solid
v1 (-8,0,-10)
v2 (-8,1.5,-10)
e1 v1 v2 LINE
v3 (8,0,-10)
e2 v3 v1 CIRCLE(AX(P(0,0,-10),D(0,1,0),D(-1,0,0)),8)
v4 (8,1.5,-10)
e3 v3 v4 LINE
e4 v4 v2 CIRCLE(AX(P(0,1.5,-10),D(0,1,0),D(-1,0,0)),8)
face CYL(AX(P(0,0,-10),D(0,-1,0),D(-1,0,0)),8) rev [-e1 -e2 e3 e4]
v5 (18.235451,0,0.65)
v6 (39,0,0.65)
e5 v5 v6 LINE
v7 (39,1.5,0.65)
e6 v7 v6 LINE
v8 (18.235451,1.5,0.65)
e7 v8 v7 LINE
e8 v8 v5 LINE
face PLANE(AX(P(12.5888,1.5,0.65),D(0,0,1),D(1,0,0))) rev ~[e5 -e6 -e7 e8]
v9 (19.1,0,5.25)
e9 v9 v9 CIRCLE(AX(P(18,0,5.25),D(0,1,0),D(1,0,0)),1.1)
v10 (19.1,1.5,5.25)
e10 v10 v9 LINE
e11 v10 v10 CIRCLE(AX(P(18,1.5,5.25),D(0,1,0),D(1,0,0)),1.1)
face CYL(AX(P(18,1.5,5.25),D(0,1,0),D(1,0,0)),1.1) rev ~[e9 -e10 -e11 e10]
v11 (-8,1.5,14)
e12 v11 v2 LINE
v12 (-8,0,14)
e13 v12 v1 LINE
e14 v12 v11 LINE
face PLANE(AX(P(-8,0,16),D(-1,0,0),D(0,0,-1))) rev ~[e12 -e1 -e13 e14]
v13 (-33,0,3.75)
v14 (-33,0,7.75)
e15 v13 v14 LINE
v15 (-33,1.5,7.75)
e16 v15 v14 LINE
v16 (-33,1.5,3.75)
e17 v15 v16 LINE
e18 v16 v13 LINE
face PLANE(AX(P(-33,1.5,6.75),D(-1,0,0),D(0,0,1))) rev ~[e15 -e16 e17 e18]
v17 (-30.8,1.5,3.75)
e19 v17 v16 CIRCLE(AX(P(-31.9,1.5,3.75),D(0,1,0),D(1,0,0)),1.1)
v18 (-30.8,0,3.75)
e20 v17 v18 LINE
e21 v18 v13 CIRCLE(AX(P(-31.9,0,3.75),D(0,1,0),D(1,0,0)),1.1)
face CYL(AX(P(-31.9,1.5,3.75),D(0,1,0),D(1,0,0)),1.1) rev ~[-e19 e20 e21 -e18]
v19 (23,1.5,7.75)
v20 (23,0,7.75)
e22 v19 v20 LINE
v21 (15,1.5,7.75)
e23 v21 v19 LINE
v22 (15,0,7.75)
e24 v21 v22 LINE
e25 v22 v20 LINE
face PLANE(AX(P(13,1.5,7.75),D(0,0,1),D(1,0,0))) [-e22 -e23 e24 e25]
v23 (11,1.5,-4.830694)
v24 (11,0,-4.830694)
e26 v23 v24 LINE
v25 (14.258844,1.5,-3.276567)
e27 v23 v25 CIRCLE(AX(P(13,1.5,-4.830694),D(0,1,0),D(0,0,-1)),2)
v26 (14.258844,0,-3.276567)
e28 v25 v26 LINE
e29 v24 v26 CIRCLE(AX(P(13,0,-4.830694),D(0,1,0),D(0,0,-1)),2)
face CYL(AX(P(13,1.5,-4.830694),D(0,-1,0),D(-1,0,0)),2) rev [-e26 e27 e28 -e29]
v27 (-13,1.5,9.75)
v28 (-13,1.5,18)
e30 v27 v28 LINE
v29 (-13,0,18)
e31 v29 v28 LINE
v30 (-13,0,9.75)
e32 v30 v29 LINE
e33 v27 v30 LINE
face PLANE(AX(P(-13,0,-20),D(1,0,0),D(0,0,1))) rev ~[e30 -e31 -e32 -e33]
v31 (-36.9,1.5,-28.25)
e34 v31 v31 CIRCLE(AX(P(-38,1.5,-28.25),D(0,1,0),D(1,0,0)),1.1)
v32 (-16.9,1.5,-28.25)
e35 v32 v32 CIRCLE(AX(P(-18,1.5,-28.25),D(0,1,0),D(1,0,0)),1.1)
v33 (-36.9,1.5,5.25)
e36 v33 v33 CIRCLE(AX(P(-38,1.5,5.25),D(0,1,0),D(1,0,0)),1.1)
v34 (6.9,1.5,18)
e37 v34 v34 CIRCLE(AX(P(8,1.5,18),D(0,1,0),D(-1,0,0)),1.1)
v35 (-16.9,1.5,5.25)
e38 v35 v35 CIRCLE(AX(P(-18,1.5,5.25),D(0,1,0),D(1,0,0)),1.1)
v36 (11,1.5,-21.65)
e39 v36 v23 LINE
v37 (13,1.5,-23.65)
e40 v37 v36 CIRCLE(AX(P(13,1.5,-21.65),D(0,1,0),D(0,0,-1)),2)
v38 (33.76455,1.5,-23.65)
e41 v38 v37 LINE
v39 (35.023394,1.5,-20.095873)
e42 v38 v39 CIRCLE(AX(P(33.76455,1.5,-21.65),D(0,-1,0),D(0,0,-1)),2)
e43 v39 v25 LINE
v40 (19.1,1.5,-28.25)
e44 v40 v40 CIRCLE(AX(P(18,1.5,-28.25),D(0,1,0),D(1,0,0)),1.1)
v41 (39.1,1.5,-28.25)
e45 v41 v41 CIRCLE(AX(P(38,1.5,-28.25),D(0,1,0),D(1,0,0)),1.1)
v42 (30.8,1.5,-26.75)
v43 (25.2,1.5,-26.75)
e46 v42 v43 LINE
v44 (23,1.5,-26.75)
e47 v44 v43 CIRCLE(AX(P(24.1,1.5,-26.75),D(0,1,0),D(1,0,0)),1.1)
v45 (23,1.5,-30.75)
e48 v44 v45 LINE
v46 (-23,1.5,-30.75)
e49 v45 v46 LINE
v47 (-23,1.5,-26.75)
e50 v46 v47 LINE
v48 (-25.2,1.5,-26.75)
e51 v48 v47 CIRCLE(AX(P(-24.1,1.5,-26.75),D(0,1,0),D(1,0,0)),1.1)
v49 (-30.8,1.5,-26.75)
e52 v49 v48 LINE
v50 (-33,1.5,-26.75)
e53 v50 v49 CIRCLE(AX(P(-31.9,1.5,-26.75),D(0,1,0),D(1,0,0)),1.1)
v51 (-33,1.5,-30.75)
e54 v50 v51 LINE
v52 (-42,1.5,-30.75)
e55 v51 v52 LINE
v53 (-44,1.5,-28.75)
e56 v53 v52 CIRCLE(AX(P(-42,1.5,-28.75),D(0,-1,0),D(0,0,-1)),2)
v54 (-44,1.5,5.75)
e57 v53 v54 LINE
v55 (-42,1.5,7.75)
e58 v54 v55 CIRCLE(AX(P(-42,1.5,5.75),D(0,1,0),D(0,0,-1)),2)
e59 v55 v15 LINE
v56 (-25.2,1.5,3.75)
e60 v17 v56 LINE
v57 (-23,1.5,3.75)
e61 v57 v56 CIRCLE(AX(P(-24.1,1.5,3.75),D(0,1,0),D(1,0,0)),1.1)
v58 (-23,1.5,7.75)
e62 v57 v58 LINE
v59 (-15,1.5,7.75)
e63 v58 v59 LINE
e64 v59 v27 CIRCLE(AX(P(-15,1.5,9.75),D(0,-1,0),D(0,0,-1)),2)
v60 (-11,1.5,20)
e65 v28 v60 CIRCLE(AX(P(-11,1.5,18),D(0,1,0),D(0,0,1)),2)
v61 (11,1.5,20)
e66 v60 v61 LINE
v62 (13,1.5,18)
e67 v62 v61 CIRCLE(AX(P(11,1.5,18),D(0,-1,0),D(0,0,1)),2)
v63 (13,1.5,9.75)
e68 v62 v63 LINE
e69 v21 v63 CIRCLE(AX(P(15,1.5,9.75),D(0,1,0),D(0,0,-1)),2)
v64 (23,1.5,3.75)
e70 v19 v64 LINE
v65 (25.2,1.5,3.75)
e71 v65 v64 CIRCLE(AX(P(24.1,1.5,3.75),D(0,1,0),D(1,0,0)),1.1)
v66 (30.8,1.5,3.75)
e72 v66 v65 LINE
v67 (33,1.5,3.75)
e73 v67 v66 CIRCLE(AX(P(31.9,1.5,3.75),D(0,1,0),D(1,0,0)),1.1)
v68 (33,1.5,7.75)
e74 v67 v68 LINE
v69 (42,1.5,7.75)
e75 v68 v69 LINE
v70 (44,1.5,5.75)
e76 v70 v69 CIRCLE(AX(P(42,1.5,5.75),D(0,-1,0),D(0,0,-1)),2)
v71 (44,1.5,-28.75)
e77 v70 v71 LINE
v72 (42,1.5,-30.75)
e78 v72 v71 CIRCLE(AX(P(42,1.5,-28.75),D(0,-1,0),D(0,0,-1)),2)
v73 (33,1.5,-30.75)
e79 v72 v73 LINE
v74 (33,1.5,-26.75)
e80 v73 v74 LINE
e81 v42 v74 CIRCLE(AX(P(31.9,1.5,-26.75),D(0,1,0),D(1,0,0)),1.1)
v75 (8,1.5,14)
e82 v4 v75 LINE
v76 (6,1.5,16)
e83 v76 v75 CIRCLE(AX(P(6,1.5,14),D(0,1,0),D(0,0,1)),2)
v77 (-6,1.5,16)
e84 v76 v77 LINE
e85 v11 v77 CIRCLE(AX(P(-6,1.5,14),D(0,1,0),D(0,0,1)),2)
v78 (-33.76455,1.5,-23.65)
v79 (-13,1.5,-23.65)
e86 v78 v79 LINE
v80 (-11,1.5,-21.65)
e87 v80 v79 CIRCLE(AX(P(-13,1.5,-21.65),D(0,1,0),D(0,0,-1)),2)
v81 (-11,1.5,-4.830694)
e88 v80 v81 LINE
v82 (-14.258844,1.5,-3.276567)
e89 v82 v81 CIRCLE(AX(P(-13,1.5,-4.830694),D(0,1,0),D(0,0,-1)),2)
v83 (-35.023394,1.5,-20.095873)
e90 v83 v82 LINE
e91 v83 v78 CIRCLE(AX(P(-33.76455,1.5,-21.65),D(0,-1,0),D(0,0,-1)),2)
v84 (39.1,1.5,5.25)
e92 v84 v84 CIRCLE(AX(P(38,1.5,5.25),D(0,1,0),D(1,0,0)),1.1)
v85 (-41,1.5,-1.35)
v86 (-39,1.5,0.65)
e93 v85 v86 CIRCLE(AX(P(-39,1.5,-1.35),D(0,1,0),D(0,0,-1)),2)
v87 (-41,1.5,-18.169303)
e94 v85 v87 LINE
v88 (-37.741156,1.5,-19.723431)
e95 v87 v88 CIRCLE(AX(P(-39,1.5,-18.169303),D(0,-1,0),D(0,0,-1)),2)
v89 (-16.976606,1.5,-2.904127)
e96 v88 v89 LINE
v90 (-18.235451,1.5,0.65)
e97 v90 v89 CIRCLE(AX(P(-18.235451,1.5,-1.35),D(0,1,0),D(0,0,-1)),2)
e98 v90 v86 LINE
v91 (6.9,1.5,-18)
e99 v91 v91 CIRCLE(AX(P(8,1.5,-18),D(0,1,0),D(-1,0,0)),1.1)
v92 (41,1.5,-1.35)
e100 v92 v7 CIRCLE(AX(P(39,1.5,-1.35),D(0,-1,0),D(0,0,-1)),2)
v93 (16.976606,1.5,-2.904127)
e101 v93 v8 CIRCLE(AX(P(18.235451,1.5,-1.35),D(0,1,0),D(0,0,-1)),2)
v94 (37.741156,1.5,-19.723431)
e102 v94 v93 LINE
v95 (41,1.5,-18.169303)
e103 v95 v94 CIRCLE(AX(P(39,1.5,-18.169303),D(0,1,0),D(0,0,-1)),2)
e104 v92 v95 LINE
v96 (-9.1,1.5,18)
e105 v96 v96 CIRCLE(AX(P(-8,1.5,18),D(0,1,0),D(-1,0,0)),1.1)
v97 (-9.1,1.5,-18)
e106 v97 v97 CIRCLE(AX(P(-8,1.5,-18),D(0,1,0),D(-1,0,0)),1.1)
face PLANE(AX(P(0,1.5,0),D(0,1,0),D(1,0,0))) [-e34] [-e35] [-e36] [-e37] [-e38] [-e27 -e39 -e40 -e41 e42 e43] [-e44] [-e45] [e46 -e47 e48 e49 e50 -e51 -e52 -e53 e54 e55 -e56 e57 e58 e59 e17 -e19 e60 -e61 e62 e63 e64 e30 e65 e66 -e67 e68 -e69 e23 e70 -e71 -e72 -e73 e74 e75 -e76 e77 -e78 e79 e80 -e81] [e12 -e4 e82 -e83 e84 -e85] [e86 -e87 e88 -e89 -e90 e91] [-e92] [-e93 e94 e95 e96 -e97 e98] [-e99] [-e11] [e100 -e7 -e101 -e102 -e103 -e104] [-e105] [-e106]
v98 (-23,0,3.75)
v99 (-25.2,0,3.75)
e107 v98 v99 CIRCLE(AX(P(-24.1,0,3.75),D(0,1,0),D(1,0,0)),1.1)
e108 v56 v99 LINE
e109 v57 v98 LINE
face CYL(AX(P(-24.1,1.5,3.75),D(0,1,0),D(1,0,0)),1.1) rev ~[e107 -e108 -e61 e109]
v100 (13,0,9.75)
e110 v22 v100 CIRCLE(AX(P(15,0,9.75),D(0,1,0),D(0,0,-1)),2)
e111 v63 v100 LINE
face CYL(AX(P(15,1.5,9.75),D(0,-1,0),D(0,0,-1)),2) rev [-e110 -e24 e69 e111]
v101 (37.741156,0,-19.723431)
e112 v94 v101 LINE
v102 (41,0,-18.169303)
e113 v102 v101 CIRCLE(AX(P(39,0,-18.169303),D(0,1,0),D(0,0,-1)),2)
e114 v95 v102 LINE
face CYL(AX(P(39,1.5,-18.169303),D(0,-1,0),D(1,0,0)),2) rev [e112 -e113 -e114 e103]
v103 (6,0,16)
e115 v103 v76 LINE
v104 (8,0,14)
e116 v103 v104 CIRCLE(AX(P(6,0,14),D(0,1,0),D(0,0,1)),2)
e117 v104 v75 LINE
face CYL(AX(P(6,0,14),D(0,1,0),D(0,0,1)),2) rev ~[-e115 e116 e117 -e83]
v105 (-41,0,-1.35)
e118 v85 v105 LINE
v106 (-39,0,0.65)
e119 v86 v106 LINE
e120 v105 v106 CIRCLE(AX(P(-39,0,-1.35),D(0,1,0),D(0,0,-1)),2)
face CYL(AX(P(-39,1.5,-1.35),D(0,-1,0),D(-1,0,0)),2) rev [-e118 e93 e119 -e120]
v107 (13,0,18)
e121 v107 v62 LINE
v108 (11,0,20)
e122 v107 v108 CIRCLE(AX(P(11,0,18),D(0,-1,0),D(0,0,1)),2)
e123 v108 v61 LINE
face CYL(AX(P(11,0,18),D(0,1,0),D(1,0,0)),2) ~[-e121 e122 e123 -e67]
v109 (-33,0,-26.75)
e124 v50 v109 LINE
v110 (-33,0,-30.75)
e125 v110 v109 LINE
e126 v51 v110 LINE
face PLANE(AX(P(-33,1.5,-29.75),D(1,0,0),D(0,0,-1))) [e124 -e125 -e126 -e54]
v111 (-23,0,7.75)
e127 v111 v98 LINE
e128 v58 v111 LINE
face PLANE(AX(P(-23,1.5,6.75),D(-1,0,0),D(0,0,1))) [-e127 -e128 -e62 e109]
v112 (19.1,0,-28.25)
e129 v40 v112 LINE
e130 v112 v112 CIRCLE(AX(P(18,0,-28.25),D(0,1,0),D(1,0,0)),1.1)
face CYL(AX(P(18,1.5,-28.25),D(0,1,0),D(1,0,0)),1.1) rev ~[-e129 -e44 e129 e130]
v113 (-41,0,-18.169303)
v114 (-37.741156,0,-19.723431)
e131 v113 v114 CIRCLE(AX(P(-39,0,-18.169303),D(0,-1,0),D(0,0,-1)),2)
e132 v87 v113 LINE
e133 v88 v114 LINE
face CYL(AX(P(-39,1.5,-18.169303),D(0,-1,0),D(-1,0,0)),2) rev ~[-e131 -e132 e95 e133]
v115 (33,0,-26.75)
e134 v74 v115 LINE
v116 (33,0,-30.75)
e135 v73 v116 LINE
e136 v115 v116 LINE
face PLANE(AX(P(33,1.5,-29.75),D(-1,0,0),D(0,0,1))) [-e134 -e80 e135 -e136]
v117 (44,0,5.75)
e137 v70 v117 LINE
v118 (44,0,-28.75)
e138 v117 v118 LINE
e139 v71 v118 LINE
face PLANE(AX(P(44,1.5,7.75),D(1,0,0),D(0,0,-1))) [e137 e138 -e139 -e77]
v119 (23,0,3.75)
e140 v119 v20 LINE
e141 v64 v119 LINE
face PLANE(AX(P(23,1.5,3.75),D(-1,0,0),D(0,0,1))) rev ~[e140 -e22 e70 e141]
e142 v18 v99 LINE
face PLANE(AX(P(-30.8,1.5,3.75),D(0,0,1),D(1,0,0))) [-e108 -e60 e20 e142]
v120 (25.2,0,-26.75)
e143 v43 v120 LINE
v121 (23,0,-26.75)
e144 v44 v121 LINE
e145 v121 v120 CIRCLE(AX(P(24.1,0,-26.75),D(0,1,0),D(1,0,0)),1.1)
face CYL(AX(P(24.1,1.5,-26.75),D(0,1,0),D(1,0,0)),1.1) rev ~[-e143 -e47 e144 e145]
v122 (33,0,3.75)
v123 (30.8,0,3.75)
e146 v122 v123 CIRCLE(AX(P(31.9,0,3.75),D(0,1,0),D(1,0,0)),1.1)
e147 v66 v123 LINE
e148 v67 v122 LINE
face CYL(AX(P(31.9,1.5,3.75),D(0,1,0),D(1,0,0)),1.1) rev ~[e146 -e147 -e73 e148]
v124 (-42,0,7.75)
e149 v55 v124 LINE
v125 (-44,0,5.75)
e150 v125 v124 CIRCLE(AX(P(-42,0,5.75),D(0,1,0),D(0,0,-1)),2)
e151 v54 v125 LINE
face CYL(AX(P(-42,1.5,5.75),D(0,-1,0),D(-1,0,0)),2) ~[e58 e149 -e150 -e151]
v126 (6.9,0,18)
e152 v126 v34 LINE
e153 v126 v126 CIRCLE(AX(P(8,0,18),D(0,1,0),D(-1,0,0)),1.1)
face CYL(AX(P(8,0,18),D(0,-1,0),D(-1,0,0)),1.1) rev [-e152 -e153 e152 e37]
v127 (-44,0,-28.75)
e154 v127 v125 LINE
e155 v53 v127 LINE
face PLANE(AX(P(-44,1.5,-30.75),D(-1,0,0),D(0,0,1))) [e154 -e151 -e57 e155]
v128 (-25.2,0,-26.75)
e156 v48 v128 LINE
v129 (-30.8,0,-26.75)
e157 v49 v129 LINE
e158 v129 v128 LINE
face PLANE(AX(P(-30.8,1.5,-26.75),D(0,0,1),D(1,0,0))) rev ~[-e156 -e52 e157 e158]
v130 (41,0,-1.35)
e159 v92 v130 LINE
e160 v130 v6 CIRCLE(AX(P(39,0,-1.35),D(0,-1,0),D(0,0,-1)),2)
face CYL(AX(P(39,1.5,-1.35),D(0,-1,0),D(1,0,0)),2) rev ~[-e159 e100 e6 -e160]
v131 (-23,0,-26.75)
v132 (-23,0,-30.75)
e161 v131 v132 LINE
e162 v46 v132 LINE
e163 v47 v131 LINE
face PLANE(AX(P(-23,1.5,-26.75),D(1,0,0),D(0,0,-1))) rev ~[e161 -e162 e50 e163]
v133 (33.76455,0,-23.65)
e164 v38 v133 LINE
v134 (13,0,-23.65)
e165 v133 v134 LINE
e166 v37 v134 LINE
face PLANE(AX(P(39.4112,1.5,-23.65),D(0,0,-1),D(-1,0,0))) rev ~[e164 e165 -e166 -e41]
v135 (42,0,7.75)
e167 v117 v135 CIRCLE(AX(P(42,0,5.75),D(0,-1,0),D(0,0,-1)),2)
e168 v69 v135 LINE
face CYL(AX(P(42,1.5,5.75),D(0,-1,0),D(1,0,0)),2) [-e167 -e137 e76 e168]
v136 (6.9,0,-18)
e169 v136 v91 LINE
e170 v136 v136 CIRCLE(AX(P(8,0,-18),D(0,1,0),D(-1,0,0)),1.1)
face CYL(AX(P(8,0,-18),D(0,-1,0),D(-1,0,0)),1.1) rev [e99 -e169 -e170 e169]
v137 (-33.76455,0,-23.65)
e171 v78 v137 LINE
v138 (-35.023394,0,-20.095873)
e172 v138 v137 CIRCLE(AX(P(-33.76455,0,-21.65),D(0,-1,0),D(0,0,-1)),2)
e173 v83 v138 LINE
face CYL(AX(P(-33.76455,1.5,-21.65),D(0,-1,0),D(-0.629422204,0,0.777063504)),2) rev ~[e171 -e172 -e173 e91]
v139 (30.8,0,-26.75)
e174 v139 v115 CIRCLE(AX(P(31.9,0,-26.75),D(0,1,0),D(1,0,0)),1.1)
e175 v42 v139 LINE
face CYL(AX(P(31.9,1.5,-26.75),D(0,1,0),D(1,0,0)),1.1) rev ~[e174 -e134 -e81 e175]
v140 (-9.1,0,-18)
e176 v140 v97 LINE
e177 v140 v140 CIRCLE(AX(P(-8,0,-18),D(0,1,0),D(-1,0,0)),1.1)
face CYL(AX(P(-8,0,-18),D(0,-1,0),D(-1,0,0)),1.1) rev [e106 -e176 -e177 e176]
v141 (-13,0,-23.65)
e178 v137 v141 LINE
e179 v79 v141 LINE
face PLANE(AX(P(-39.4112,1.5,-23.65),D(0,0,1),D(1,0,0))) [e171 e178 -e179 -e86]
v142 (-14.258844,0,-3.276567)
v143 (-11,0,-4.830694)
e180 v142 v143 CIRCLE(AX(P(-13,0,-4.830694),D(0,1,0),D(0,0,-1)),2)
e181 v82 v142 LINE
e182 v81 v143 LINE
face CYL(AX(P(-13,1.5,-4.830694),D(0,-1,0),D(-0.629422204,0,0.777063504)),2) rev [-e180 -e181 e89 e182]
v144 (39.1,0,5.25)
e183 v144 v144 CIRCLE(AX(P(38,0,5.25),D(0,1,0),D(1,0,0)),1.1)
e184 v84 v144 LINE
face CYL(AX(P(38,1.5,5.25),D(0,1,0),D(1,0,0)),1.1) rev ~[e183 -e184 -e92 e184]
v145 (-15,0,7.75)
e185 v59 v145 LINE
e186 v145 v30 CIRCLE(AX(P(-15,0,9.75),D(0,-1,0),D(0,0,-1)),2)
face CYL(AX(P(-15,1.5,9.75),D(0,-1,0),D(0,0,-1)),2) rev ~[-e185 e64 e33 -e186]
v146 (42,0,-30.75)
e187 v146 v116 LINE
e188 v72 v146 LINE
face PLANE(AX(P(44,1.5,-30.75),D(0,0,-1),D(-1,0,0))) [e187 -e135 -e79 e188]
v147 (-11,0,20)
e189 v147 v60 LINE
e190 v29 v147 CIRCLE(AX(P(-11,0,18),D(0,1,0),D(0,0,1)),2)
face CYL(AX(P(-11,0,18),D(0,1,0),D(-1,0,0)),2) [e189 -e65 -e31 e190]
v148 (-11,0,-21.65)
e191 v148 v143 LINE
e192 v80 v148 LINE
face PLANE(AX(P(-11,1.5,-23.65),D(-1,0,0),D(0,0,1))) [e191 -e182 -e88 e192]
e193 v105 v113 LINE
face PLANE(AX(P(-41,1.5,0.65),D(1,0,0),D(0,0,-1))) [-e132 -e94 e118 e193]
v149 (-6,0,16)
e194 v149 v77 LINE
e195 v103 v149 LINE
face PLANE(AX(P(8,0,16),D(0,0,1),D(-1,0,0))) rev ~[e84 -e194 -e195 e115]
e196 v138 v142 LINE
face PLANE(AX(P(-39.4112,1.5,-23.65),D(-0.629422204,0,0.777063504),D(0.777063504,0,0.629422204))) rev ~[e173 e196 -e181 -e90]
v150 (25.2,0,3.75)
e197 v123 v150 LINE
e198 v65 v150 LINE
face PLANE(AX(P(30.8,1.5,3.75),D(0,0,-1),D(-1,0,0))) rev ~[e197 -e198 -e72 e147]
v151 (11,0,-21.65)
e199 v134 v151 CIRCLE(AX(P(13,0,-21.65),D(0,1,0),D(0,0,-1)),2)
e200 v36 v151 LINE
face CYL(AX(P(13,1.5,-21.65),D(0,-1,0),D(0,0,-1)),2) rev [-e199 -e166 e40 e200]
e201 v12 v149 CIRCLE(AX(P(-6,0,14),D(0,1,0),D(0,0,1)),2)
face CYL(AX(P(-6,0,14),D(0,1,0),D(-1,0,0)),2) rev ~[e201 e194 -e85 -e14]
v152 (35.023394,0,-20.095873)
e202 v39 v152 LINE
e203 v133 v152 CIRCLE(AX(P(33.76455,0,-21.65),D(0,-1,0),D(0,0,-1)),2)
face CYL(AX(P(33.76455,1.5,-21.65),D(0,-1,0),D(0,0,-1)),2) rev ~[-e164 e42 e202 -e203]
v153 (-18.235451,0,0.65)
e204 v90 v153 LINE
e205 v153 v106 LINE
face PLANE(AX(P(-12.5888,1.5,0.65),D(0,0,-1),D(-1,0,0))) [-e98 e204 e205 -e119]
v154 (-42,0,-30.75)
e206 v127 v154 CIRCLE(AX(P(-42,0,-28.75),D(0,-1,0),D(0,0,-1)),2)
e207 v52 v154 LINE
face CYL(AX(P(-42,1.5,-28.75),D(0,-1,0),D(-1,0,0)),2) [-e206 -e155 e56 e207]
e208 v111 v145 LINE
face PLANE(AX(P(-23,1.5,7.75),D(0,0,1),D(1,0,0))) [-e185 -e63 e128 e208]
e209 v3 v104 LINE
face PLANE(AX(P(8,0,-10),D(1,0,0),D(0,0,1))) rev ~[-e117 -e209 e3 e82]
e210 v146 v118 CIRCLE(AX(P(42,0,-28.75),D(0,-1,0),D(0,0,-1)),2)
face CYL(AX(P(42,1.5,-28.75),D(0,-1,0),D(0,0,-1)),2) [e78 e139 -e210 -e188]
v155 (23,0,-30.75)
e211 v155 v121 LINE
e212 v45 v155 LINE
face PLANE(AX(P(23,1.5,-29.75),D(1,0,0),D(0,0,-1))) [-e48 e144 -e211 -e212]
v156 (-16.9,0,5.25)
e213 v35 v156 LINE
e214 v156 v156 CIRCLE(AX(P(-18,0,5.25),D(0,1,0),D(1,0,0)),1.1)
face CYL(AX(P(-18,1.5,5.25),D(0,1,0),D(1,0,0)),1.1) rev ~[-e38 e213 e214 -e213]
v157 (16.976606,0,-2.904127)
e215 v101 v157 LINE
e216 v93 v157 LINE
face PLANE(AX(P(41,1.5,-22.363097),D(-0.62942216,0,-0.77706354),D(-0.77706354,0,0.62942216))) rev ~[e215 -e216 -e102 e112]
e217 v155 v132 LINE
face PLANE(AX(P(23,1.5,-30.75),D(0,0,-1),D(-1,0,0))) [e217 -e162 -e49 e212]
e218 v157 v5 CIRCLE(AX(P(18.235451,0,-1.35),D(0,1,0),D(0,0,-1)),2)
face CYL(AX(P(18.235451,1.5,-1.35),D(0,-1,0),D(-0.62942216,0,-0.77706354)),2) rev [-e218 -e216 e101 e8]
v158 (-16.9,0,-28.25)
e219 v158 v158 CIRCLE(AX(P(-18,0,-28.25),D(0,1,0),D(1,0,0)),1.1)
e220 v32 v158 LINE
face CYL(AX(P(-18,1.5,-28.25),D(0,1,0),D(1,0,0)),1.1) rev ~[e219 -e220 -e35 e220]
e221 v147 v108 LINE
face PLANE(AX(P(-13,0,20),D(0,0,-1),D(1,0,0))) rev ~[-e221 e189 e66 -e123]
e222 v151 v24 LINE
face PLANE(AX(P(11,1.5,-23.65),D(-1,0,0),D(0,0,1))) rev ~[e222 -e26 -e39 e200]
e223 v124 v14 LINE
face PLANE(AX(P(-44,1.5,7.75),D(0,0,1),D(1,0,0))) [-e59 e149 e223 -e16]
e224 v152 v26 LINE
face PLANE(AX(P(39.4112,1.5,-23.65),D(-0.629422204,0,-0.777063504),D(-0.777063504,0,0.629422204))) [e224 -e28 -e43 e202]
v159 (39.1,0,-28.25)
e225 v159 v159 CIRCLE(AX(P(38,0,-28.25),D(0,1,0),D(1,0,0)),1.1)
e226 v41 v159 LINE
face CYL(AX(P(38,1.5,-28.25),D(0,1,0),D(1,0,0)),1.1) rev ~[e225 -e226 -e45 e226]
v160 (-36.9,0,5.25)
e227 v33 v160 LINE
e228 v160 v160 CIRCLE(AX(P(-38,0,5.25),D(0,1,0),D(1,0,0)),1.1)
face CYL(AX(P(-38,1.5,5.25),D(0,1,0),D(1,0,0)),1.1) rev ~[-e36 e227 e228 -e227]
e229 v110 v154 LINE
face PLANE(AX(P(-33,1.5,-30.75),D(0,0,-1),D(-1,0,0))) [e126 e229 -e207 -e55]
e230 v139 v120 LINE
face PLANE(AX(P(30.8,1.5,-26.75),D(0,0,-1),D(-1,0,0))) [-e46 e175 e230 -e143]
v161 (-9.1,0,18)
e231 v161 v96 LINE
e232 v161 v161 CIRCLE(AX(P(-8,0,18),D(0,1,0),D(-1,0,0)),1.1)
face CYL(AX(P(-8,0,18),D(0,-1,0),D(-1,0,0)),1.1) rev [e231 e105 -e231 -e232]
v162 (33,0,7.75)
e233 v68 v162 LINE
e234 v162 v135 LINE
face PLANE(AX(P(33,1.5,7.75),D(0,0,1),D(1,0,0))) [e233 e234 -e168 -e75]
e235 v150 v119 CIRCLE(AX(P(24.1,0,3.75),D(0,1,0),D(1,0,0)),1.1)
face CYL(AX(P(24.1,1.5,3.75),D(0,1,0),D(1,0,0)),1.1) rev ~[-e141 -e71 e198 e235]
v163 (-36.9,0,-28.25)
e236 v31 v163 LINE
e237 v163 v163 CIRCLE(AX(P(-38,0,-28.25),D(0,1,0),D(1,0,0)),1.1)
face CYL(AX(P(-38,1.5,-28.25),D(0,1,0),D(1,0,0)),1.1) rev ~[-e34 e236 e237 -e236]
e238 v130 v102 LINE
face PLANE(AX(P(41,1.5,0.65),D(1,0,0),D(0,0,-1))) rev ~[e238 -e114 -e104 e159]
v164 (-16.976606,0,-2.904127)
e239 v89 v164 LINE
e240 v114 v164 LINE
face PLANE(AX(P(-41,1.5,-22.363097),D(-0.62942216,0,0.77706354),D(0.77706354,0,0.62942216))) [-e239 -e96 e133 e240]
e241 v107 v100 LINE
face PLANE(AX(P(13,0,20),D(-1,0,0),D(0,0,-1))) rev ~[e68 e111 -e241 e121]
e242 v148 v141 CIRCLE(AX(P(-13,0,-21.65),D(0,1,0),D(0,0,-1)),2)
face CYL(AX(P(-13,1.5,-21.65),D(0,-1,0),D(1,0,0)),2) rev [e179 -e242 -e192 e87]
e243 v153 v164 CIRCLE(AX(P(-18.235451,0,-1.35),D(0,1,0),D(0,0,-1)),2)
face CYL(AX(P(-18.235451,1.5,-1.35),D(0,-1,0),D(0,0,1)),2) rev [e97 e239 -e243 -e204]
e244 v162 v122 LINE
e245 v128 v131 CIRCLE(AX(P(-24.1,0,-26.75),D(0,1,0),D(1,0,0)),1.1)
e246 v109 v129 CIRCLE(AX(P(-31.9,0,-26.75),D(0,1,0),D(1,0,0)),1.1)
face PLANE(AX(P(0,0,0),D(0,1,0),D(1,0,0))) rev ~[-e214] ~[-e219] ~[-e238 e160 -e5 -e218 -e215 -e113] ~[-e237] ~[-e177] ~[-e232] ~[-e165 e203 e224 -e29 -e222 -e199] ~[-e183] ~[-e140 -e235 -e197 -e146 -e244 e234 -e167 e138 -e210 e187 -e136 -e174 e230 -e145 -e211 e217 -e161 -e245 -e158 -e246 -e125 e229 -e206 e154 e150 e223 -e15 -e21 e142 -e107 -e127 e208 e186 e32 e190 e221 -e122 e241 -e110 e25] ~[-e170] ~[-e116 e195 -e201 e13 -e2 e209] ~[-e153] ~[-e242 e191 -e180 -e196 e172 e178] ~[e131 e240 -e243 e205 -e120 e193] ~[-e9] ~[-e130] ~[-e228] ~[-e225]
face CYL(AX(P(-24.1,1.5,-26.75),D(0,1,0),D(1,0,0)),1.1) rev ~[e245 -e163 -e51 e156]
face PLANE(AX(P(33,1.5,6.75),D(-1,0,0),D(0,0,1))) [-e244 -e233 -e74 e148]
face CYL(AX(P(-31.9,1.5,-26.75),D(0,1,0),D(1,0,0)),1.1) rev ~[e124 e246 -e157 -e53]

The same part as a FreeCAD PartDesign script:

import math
import FreeCAD as App
import Part
import Sketcher
Q = App.Units.Quantity


def edges_at(feature, points):
    """Names of the edges that pass closest to the given points."""
    edges = feature.Shape.Edges
    near = lambda p: min(range(len(edges)), key=lambda i: edges[i].distToShape(Part.Vertex(*p))[0])
    return sorted({f"Edge{near(p) + 1}" for p in points})

doc = App.newDocument("Part")
body = doc.addObject("PartDesign::Body", "Body")

# Sketch on XZ plane
sketch1 = doc.addObject("Sketcher::SketchObject", "Sketch")
body.addObject(sketch1)
sketch1.AttachmentSupport = (doc.XZ_Plane, [""])
sketch1.MapMode = "FlatFace"
sketch1.addGeometry([
    Part.LineSegment(App.Vector(-13, -20, 0), App.Vector(-13, 20, 0)),  # 0
    Part.LineSegment(App.Vector(-13, 20, 0), App.Vector(13, 20, 0)),  # 1
    Part.LineSegment(App.Vector(13, 20, 0), App.Vector(13, -20, 0)),  # 2
    Part.LineSegment(App.Vector(13, -20, 0), App.Vector(-13, -20, 0)),  # 3
    Part.Circle(App.Vector(8, -18, 0), App.Vector(0, 0, 1), 1.1),  # 4
    Part.Circle(App.Vector(-8, -18, 0), App.Vector(0, 0, 1), 1.1),  # 5
    Part.LineSegment(App.Vector(-8, 16, 0), App.Vector(-8, -10, 0)),  # 6
    Part.ArcOfCircle(Part.Circle(App.Vector(0, -10, 0), App.Vector(0, 0, 1), 8), math.radians(180), math.radians(360)),  # 7
    Part.LineSegment(App.Vector(8, -10, 0), App.Vector(8, 16, 0)),  # 8
    Part.LineSegment(App.Vector(8, 16, 0), App.Vector(-8, 16, 0)),  # 9
    Part.Circle(App.Vector(8, 18, 0), App.Vector(0, 0, 1), 1.1),  # 10
    Part.Circle(App.Vector(-8, 18, 0), App.Vector(0, 0, 1), 1.1),  # 11
], False)
sketch1.addConstraint([
    Sketcher.Constraint("Coincident", 0, 2, 1, 1),
    Sketcher.Constraint("Coincident", 1, 2, 2, 1),
    Sketcher.Constraint("Coincident", 2, 2, 3, 1),
    Sketcher.Constraint("Coincident", 3, 2, 0, 1),
    Sketcher.Constraint("Tangent", 6, 2, 7, 1),
    Sketcher.Constraint("Tangent", 7, 2, 8, 1),
    Sketcher.Constraint("Coincident", 8, 2, 9, 1),
    Sketcher.Constraint("Coincident", 9, 2, 6, 1),
    Sketcher.Constraint("Vertical", 0),
    Sketcher.Constraint("Horizontal", 1),
    Sketcher.Constraint("Vertical", 2),
    Sketcher.Constraint("Horizontal", 3),
    Sketcher.Constraint("Vertical", 6),
    Sketcher.Constraint("Vertical", 8),
    Sketcher.Constraint("Horizontal", 9),
    Sketcher.Constraint("Equal", 4, 5),
    Sketcher.Constraint("Equal", 5, 10),
    Sketcher.Constraint("Equal", 10, 11),
    Sketcher.Constraint("Symmetric", 5, 3, 10, 3, -1, 1),
    Sketcher.Constraint("Symmetric", 4, 3, 11, 3, -1, 1),
    Sketcher.Constraint("Symmetric", 0, 2, 2, 2, -1, 1),
    Sketcher.Constraint("Symmetric", 4, 3, 5, 3, -2),
    Sketcher.Constraint("PointOnObject", 7, 3, -2),
    Sketcher.Constraint("Vertical", 11, 3, 6, 2),
    Sketcher.Constraint("Equal", 3, 6),
    Sketcher.Constraint("Radius", 7, Q("8 mm")),
    Sketcher.Constraint("Diameter", 4, Q("2.2 mm")),
    Sketcher.Constraint("DistanceY", 7, 3, -1, 1, Q("10 mm")),
    Sketcher.Constraint("DistanceY", -1, 1, 8, 2, Q("16 mm")),
    Sketcher.Constraint("DistanceY", 4, 3, 10, 3, Q("36 mm")),
    Sketcher.Constraint("DistanceY", 11, 3, 0, 2, Q("2 mm")),
])
pad1 = doc.addObject("PartDesign::Pad", "Pad")
body.addObject(pad1)
pad1.Profile = sketch1
pad1.Length = 1.5
pad1.Reversed = True
doc.recompute()

fillet = doc.addObject("PartDesign::Fillet", "Fillet")
body.addObject(fillet)
fillet.Base = (pad1, edges_at(pad1, [(8, 0.75, 16), (-8, 0.75, 16)]))
fillet.Radius = 2

# Sketch on XZ plane
sketch2 = doc.addObject("Sketcher::SketchObject", "Sketch001")
body.addObject(sketch2)
sketch2.AttachmentSupport = (doc.XZ_Plane, [""])
sketch2.MapMode = "FlatFace"
sketch2.AttachmentOffset = App.Placement(App.Vector(0, 0, -1.5), App.Rotation())
sketch2.addGeometry([
    Part.LineSegment(App.Vector(-44, -30.8, 0), App.Vector(-44, 7.8, 0)),  # 0
    Part.LineSegment(App.Vector(-44, 7.8, 0), App.Vector(-33, 7.8, 0)),  # 1
    Part.LineSegment(App.Vector(-33, 7.8, 0), App.Vector(-33, 3.8, 0)),  # 2
    Part.ArcOfCircle(Part.Circle(App.Vector(-31.9, 3.8, 0), App.Vector(0, 0, 1), 1.1), math.radians(180), math.radians(360)),  # 3
    Part.LineSegment(App.Vector(-30.8, 3.8, 0), App.Vector(-25.2, 3.8, 0)),  # 4
    Part.ArcOfCircle(Part.Circle(App.Vector(-24.1, 3.8, 0), App.Vector(0, 0, 1), 1.1), math.radians(180), math.radians(360)),  # 5
    Part.LineSegment(App.Vector(-23, 3.8, 0), App.Vector(-23, 7.8, 0)),  # 6
    Part.LineSegment(App.Vector(-23, 7.8, 0), App.Vector(-13, 7.8, 0)),  # 7
    Part.LineSegment(App.Vector(-13, 7.8, 0), App.Vector(-13, -20, 0)),  # 8
    Part.LineSegment(App.Vector(-13, -20, 0), App.Vector(13, -20, 0)),  # 9
    Part.LineSegment(App.Vector(13, -20, 0), App.Vector(13, 7.8, 0)),  # 10
    Part.LineSegment(App.Vector(13, 7.8, 0), App.Vector(23, 7.8, 0)),  # 11
    Part.LineSegment(App.Vector(23, 7.8, 0), App.Vector(23, 3.8, 0)),  # 12
    Part.ArcOfCircle(Part.Circle(App.Vector(24.1, 3.8, 0), App.Vector(0, 0, 1), 1.1), math.radians(180), math.radians(360)),  # 13
    Part.LineSegment(App.Vector(25.2, 3.8, 0), App.Vector(30.8, 3.8, 0)),  # 14
    Part.ArcOfCircle(Part.Circle(App.Vector(31.9, 3.8, 0), App.Vector(0, 0, 1), 1.1), math.radians(180), math.radians(360)),  # 15
    Part.LineSegment(App.Vector(33, 3.8, 0), App.Vector(33, 7.8, 0)),  # 16
    Part.LineSegment(App.Vector(33, 7.8, 0), App.Vector(44, 7.8, 0)),  # 17
    Part.LineSegment(App.Vector(44, 7.8, 0), App.Vector(44, -30.8, 0)),  # 18
    Part.LineSegment(App.Vector(44, -30.8, 0), App.Vector(33, -30.8, 0)),  # 19
    Part.LineSegment(App.Vector(33, -30.8, 0), App.Vector(33, -26.8, 0)),  # 20
    Part.ArcOfCircle(Part.Circle(App.Vector(31.9, -26.8, 0), App.Vector(0, 0, 1), 1.1), math.radians(0), math.radians(180)),  # 21
    Part.LineSegment(App.Vector(30.8, -26.8, 0), App.Vector(25.2, -26.8, 0)),  # 22
    Part.ArcOfCircle(Part.Circle(App.Vector(24.1, -26.8, 0), App.Vector(0, 0, 1), 1.1), math.radians(0), math.radians(180)),  # 23
    Part.LineSegment(App.Vector(23, -26.8, 0), App.Vector(23, -30.8, 0)),  # 24
    Part.LineSegment(App.Vector(23, -30.8, 0), App.Vector(-23, -30.8, 0)),  # 25
    Part.LineSegment(App.Vector(-23, -30.8, 0), App.Vector(-23, -26.8, 0)),  # 26
    Part.ArcOfCircle(Part.Circle(App.Vector(-24.1, -26.8, 0), App.Vector(0, 0, 1), 1.1), math.radians(0), math.radians(180)),  # 27
    Part.LineSegment(App.Vector(-25.2, -26.8, 0), App.Vector(-30.8, -26.8, 0)),  # 28
    Part.ArcOfCircle(Part.Circle(App.Vector(-31.9, -26.8, 0), App.Vector(0, 0, 1), 1.1), math.radians(0), math.radians(180)),  # 29
    Part.LineSegment(App.Vector(-33, -26.8, 0), App.Vector(-33, -30.8, 0)),  # 30
    Part.LineSegment(App.Vector(-33, -30.8, 0), App.Vector(-44, -30.8, 0)),  # 31
    Part.Circle(App.Vector(-38, 5.2, 0), App.Vector(0, 0, 1), 1.1),  # 32
    Part.Circle(App.Vector(-18, 5.2, 0), App.Vector(0, 0, 1), 1.1),  # 33
    Part.Circle(App.Vector(18, 5.2, 0), App.Vector(0, 0, 1), 1.1),  # 34
    Part.Circle(App.Vector(38, 5.2, 0), App.Vector(0, 0, 1), 1.1),  # 35
    Part.Circle(App.Vector(-38, -28.2, 0), App.Vector(0, 0, 1), 1.1),  # 36
    Part.Circle(App.Vector(-18, -28.2, 0), App.Vector(0, 0, 1), 1.1),  # 37
    Part.Circle(App.Vector(18, -28.2, 0), App.Vector(0, 0, 1), 1.1),  # 38
    Part.Circle(App.Vector(38, -28.2, 0), App.Vector(0, 0, 1), 1.1),  # 39
], False)
sketch2.addConstraint([
    Sketcher.Constraint("Coincident", 0, 2, 1, 1),
    Sketcher.Constraint("Coincident", 1, 2, 2, 1),
    Sketcher.Constraint("Tangent", 2, 2, 3, 1),
    Sketcher.Constraint("Coincident", 3, 2, 4, 1),
    Sketcher.Constraint("Coincident", 4, 2, 5, 1),
    Sketcher.Constraint("Tangent", 5, 2, 6, 1),
    Sketcher.Constraint("Coincident", 6, 2, 7, 1),
    Sketcher.Constraint("Coincident", 7, 2, 8, 1),
    Sketcher.Constraint("Coincident", 8, 2, 9, 1),
    Sketcher.Constraint("Coincident", 9, 2, 10, 1),
    Sketcher.Constraint("Coincident", 10, 2, 11, 1),
    Sketcher.Constraint("Coincident", 11, 2, 12, 1),
    Sketcher.Constraint("Tangent", 12, 2, 13, 1),
    Sketcher.Constraint("Coincident", 13, 2, 14, 1),
    Sketcher.Constraint("Coincident", 14, 2, 15, 1),
    Sketcher.Constraint("Tangent", 15, 2, 16, 1),
    Sketcher.Constraint("Coincident", 16, 2, 17, 1),
    Sketcher.Constraint("Coincident", 17, 2, 18, 1),
    Sketcher.Constraint("Coincident", 18, 2, 19, 1),
    Sketcher.Constraint("Coincident", 19, 2, 20, 1),
    Sketcher.Constraint("Tangent", 20, 2, 21, 1),
    Sketcher.Constraint("Coincident", 21, 2, 22, 1),
    Sketcher.Constraint("Coincident", 22, 2, 23, 1),
    Sketcher.Constraint("Tangent", 23, 2, 24, 1),
    Sketcher.Constraint("Coincident", 24, 2, 25, 1),
    Sketcher.Constraint("Coincident", 25, 2, 26, 1),
    Sketcher.Constraint("Tangent", 26, 2, 27, 1),
    Sketcher.Constraint("Coincident", 27, 2, 28, 1),
    Sketcher.Constraint("Coincident", 28, 2, 29, 1),
    Sketcher.Constraint("Tangent", 29, 2, 30, 1),
    Sketcher.Constraint("Coincident", 30, 2, 31, 1),
    Sketcher.Constraint("Coincident", 31, 2, 0, 1),
    Sketcher.Constraint("Vertical", 0),
    Sketcher.Constraint("Horizontal", 1),
    Sketcher.Constraint("Vertical", 2),
    Sketcher.Constraint("Horizontal", 4),
    Sketcher.Constraint("Vertical", 6),
    Sketcher.Constraint("Horizontal", 7),
    Sketcher.Constraint("Vertical", 8),
    Sketcher.Constraint("Horizontal", 9),
    Sketcher.Constraint("Vertical", 10),
    Sketcher.Constraint("Horizontal", 11),
    Sketcher.Constraint("Vertical", 12),
    Sketcher.Constraint("Horizontal", 14),
    Sketcher.Constraint("Vertical", 16),
    Sketcher.Constraint("Horizontal", 17),
    Sketcher.Constraint("Vertical", 18),
    Sketcher.Constraint("Horizontal", 19),
    Sketcher.Constraint("Vertical", 20),
    Sketcher.Constraint("Horizontal", 22),
    Sketcher.Constraint("Vertical", 24),
    Sketcher.Constraint("Horizontal", 25),
    Sketcher.Constraint("Vertical", 26),
    Sketcher.Constraint("Horizontal", 28),
    Sketcher.Constraint("Vertical", 30),
    Sketcher.Constraint("Horizontal", 31),
    Sketcher.Constraint("Equal", 3, 5),
    Sketcher.Constraint("Equal", 5, 13),
    Sketcher.Constraint("Equal", 13, 15),
    Sketcher.Constraint("Equal", 15, 21),
    Sketcher.Constraint("Equal", 21, 23),
    Sketcher.Constraint("Equal", 23, 27),
    Sketcher.Constraint("Equal", 27, 29),
    Sketcher.Constraint("Equal", 29, 32),
    Sketcher.Constraint("Equal", 32, 33),
    Sketcher.Constraint("Equal", 33, 34),
    Sketcher.Constraint("Equal", 34, 35),
    Sketcher.Constraint("Equal", 35, 36),
    Sketcher.Constraint("Equal", 36, 37),
    Sketcher.Constraint("Equal", 37, 38),
    Sketcher.Constraint("Equal", 38, 39),
    Sketcher.Constraint("Symmetric", 5, 3, 13, 3, -2),
    Sketcher.Constraint("Symmetric", 3, 3, 15, 3, -2),
    Sketcher.Constraint("Symmetric", 23, 3, 27, 3, -2),
    Sketcher.Constraint("Symmetric", 21, 3, 29, 3, -2),
    Sketcher.Constraint("Symmetric", 33, 3, 34, 3, -2),
    Sketcher.Constraint("Symmetric", 32, 3, 35, 3, -2),
    Sketcher.Constraint("Symmetric", 37, 3, 38, 3, -2),
    Sketcher.Constraint("Symmetric", 36, 3, 39, 3, -2),
    Sketcher.Constraint("Symmetric", 7, 2, 10, 2, -2),
    Sketcher.Constraint("Symmetric", 0, 2, 17, 2, -2),
    Sketcher.Constraint("Horizontal", 3, 3, 5, 3),
    Sketcher.Constraint("Horizontal", 21, 3, 23, 3),
    Sketcher.Constraint("Horizontal", 32, 3, 33, 3),
    Sketcher.Constraint("Horizontal", 36, 3, 37, 3),
    Sketcher.Constraint("Horizontal", 2, 2, 3, 2),
    Sketcher.Constraint("Horizontal", 1, 2, 6, 2),
    Sketcher.Constraint("Horizontal", 12, 2, 13, 2),
    Sketcher.Constraint("Horizontal", 20, 2, 21, 2),
    Sketcher.Constraint("Horizontal", 19, 2, 24, 2),
    Sketcher.Constraint("Horizontal", 26, 2, 27, 2),
    Sketcher.Constraint("Horizontal", 25, 2, 30, 2),
    Sketcher.Constraint("Vertical", 15, 3, 21, 3),
    Sketcher.Constraint("Vertical", 13, 3, 23, 3),
    Sketcher.Constraint("Vertical", 32, 3, 36, 3),
    Sketcher.Constraint("Vertical", 33, 3, 37, 3),
    Sketcher.Constraint("Equal", 16, 20),
    Sketcher.Constraint("Diameter", 32, Q("2.2 mm")),
    Sketcher.Constraint("DistanceX", 7, 1, 7, 2, Q("10 mm")),
    Sketcher.Constraint("DistanceX", 0, 2, 32, 3, Q("6 mm")),
    Sketcher.Constraint("DistanceX", 32, 3, 1, 2, Q("5 mm")),
    Sketcher.Constraint("DistanceX", 5, 2, 33, 3, Q("5 mm")),
    Sketcher.Constraint("DistanceX", 9, 2, 18, 2, Q("31 mm")),
    Sketcher.Constraint("DistanceX", 9, 1, 9, 2, Q("26 mm")),
    Sketcher.Constraint("DistanceY", 2, 2, 2, 1, Q("4 mm")),
    Sketcher.Constraint("DistanceY", 0, 1, 0, 2, Q("38.5 mm")),
    Sketcher.Constraint("DistanceY", 8, 2, -1, 1, Q("20 mm")),
    Sketcher.Constraint("DistanceY", 29, 3, 32, 3, Q("32 mm")),
    Sketcher.Constraint("DistanceY", 36, 3, 3, 3, Q("32 mm")),
    Sketcher.Constraint("DistanceY", 8, 2, 8, 1, Q("27.75 mm")),
])
pad2 = doc.addObject("PartDesign::Pad", "Pad001")
body.addObject(pad2)
pad2.Profile = sketch2
pad2.Length = 1.5
doc.recompute()

fillet2 = doc.addObject("PartDesign::Fillet", "Fillet001")
body.addObject(fillet2)
fillet2.Base = (pad2, edges_at(pad2, [
    (44, 0.75, -30.75),
    (44, 0.75, 7.75),
    (13, 0.75, 7.75),
    (13, 0.75, 20),
    (-13, 0.75, 20),
    (-13, 0.75, 7.75),
    (-44, 0.75, 7.75),
    (-44, 0.75, -30.75),
]))
fillet2.Radius = 2

# Sketch on XZ plane
sketch3 = doc.addObject("Sketcher::SketchObject", "Sketch002")
body.addObject(sketch3)
sketch3.AttachmentSupport = (doc.XZ_Plane, [""])
sketch3.MapMode = "FlatFace"
sketch3.AttachmentOffset = App.Placement(App.Vector(0, 0, -1.5), App.Rotation())
sketch3.addGeometry([
    Part.LineSegment(App.Vector(11, -1, 0), App.Vector(39, -24, 0)),  # 0
    Part.LineSegment(App.Vector(39, -24, 0), App.Vector(11, -24, 0)),  # 1
    Part.LineSegment(App.Vector(11, -24, 0), App.Vector(11, -1, 0)),  # 2
    Part.LineSegment(App.Vector(41, 1, 0), App.Vector(41, -22, 0)),  # 3
    Part.LineSegment(App.Vector(41, -22, 0), App.Vector(13, 1, 0)),  # 4
    Part.LineSegment(App.Vector(13, 1, 0), App.Vector(41, 1, 0)),  # 5
    Part.LineSegment(App.Vector(-11, -24, 0), App.Vector(-39, -24, 0)),  # 6
    Part.LineSegment(App.Vector(-39, -24, 0), App.Vector(-11, -1, 0)),  # 7
    Part.LineSegment(App.Vector(-11, -1, 0), App.Vector(-11, -24, 0)),  # 8
    Part.LineSegment(App.Vector(-13, 1, 0), App.Vector(-41, -22, 0)),  # 9
    Part.LineSegment(App.Vector(-41, -22, 0), App.Vector(-41, 1, 0)),  # 10
    Part.LineSegment(App.Vector(-41, 1, 0), App.Vector(-13, 1, 0)),  # 11
], False)
sketch3.addConstraint([
    Sketcher.Constraint("Coincident", 0, 2, 1, 1),
    Sketcher.Constraint("Coincident", 1, 2, 2, 1),
    Sketcher.Constraint("Coincident", 2, 2, 0, 1),
    Sketcher.Constraint("Coincident", 3, 2, 4, 1),
    Sketcher.Constraint("Coincident", 4, 2, 5, 1),
    Sketcher.Constraint("Coincident", 5, 2, 3, 1),
    Sketcher.Constraint("Coincident", 6, 2, 7, 1),
    Sketcher.Constraint("Coincident", 7, 2, 8, 1),
    Sketcher.Constraint("Coincident", 8, 2, 6, 1),
    Sketcher.Constraint("Coincident", 9, 2, 10, 1),
    Sketcher.Constraint("Coincident", 10, 2, 11, 1),
    Sketcher.Constraint("Coincident", 11, 2, 9, 1),
    Sketcher.Constraint("Horizontal", 1),
    Sketcher.Constraint("Vertical", 2),
    Sketcher.Constraint("Vertical", 3),
    Sketcher.Constraint("Horizontal", 5),
    Sketcher.Constraint("Horizontal", 6),
    Sketcher.Constraint("Vertical", 8),
    Sketcher.Constraint("Vertical", 10),
    Sketcher.Constraint("Horizontal", 11),
    Sketcher.Constraint("Symmetric", 0, 2, 6, 2, -2),
    Sketcher.Constraint("Symmetric", 2, 2, 7, 2, -2),
    Sketcher.Constraint("Symmetric", 3, 2, 9, 2, -2),
    Sketcher.Constraint("Symmetric", 4, 2, 11, 2, -2),
    Sketcher.Constraint("Parallel", 0, 4),
    Sketcher.Constraint("Equal", 1, 5),
    Sketcher.Constraint("DistanceX", -1, 1, 1, 2, Q("11 mm")),
    Sketcher.Constraint("DistanceX", -1, 1, 3, 2, Q("41 mm")),
    Sketcher.Constraint("DistanceY", 1, 2, 4, 2, Q("24.3 mm")),
    Sketcher.Constraint("DistanceY", 2, 1, 2, 2, Q("23.013 mm")),
    Sketcher.Constraint("DistanceY", 0, 2, -1, 1, Q("23.65 mm")),
    Sketcher.Constraint("DistanceX", 1, 2, 1, 1, Q("28.4112 mm")),
])
pocket1 = doc.addObject("PartDesign::Pocket", "Pocket")
body.addObject(pocket1)
pocket1.Profile = sketch3
pocket1.Length = 1.5
pocket1.Reversed = True
doc.recompute()

fillet3 = doc.addObject("PartDesign::Fillet", "Fillet002")
body.addObject(fillet3)
fillet3.Base = (pocket1, edges_at(pocket1, [
    (-39.411, 0.75, -23.65),
    (-41, 0.75, -22.363),
    (-11, 0.75, -23.65),
    (-12.589, 0.75, 0.65),
    (-41, 0.75, 0.65),
    (41, 0.75, 0.65),
    (39.411, 0.75, -23.65),
    (41, 0.75, -22.363),
    (11, 0.75, -23.65),
    (12.589, 0.75, 0.65),
    (-11, 0.75, -0.637),
    (11, 0.75, -0.637),
]))
fillet3.Radius = 2

doc.recompute()
